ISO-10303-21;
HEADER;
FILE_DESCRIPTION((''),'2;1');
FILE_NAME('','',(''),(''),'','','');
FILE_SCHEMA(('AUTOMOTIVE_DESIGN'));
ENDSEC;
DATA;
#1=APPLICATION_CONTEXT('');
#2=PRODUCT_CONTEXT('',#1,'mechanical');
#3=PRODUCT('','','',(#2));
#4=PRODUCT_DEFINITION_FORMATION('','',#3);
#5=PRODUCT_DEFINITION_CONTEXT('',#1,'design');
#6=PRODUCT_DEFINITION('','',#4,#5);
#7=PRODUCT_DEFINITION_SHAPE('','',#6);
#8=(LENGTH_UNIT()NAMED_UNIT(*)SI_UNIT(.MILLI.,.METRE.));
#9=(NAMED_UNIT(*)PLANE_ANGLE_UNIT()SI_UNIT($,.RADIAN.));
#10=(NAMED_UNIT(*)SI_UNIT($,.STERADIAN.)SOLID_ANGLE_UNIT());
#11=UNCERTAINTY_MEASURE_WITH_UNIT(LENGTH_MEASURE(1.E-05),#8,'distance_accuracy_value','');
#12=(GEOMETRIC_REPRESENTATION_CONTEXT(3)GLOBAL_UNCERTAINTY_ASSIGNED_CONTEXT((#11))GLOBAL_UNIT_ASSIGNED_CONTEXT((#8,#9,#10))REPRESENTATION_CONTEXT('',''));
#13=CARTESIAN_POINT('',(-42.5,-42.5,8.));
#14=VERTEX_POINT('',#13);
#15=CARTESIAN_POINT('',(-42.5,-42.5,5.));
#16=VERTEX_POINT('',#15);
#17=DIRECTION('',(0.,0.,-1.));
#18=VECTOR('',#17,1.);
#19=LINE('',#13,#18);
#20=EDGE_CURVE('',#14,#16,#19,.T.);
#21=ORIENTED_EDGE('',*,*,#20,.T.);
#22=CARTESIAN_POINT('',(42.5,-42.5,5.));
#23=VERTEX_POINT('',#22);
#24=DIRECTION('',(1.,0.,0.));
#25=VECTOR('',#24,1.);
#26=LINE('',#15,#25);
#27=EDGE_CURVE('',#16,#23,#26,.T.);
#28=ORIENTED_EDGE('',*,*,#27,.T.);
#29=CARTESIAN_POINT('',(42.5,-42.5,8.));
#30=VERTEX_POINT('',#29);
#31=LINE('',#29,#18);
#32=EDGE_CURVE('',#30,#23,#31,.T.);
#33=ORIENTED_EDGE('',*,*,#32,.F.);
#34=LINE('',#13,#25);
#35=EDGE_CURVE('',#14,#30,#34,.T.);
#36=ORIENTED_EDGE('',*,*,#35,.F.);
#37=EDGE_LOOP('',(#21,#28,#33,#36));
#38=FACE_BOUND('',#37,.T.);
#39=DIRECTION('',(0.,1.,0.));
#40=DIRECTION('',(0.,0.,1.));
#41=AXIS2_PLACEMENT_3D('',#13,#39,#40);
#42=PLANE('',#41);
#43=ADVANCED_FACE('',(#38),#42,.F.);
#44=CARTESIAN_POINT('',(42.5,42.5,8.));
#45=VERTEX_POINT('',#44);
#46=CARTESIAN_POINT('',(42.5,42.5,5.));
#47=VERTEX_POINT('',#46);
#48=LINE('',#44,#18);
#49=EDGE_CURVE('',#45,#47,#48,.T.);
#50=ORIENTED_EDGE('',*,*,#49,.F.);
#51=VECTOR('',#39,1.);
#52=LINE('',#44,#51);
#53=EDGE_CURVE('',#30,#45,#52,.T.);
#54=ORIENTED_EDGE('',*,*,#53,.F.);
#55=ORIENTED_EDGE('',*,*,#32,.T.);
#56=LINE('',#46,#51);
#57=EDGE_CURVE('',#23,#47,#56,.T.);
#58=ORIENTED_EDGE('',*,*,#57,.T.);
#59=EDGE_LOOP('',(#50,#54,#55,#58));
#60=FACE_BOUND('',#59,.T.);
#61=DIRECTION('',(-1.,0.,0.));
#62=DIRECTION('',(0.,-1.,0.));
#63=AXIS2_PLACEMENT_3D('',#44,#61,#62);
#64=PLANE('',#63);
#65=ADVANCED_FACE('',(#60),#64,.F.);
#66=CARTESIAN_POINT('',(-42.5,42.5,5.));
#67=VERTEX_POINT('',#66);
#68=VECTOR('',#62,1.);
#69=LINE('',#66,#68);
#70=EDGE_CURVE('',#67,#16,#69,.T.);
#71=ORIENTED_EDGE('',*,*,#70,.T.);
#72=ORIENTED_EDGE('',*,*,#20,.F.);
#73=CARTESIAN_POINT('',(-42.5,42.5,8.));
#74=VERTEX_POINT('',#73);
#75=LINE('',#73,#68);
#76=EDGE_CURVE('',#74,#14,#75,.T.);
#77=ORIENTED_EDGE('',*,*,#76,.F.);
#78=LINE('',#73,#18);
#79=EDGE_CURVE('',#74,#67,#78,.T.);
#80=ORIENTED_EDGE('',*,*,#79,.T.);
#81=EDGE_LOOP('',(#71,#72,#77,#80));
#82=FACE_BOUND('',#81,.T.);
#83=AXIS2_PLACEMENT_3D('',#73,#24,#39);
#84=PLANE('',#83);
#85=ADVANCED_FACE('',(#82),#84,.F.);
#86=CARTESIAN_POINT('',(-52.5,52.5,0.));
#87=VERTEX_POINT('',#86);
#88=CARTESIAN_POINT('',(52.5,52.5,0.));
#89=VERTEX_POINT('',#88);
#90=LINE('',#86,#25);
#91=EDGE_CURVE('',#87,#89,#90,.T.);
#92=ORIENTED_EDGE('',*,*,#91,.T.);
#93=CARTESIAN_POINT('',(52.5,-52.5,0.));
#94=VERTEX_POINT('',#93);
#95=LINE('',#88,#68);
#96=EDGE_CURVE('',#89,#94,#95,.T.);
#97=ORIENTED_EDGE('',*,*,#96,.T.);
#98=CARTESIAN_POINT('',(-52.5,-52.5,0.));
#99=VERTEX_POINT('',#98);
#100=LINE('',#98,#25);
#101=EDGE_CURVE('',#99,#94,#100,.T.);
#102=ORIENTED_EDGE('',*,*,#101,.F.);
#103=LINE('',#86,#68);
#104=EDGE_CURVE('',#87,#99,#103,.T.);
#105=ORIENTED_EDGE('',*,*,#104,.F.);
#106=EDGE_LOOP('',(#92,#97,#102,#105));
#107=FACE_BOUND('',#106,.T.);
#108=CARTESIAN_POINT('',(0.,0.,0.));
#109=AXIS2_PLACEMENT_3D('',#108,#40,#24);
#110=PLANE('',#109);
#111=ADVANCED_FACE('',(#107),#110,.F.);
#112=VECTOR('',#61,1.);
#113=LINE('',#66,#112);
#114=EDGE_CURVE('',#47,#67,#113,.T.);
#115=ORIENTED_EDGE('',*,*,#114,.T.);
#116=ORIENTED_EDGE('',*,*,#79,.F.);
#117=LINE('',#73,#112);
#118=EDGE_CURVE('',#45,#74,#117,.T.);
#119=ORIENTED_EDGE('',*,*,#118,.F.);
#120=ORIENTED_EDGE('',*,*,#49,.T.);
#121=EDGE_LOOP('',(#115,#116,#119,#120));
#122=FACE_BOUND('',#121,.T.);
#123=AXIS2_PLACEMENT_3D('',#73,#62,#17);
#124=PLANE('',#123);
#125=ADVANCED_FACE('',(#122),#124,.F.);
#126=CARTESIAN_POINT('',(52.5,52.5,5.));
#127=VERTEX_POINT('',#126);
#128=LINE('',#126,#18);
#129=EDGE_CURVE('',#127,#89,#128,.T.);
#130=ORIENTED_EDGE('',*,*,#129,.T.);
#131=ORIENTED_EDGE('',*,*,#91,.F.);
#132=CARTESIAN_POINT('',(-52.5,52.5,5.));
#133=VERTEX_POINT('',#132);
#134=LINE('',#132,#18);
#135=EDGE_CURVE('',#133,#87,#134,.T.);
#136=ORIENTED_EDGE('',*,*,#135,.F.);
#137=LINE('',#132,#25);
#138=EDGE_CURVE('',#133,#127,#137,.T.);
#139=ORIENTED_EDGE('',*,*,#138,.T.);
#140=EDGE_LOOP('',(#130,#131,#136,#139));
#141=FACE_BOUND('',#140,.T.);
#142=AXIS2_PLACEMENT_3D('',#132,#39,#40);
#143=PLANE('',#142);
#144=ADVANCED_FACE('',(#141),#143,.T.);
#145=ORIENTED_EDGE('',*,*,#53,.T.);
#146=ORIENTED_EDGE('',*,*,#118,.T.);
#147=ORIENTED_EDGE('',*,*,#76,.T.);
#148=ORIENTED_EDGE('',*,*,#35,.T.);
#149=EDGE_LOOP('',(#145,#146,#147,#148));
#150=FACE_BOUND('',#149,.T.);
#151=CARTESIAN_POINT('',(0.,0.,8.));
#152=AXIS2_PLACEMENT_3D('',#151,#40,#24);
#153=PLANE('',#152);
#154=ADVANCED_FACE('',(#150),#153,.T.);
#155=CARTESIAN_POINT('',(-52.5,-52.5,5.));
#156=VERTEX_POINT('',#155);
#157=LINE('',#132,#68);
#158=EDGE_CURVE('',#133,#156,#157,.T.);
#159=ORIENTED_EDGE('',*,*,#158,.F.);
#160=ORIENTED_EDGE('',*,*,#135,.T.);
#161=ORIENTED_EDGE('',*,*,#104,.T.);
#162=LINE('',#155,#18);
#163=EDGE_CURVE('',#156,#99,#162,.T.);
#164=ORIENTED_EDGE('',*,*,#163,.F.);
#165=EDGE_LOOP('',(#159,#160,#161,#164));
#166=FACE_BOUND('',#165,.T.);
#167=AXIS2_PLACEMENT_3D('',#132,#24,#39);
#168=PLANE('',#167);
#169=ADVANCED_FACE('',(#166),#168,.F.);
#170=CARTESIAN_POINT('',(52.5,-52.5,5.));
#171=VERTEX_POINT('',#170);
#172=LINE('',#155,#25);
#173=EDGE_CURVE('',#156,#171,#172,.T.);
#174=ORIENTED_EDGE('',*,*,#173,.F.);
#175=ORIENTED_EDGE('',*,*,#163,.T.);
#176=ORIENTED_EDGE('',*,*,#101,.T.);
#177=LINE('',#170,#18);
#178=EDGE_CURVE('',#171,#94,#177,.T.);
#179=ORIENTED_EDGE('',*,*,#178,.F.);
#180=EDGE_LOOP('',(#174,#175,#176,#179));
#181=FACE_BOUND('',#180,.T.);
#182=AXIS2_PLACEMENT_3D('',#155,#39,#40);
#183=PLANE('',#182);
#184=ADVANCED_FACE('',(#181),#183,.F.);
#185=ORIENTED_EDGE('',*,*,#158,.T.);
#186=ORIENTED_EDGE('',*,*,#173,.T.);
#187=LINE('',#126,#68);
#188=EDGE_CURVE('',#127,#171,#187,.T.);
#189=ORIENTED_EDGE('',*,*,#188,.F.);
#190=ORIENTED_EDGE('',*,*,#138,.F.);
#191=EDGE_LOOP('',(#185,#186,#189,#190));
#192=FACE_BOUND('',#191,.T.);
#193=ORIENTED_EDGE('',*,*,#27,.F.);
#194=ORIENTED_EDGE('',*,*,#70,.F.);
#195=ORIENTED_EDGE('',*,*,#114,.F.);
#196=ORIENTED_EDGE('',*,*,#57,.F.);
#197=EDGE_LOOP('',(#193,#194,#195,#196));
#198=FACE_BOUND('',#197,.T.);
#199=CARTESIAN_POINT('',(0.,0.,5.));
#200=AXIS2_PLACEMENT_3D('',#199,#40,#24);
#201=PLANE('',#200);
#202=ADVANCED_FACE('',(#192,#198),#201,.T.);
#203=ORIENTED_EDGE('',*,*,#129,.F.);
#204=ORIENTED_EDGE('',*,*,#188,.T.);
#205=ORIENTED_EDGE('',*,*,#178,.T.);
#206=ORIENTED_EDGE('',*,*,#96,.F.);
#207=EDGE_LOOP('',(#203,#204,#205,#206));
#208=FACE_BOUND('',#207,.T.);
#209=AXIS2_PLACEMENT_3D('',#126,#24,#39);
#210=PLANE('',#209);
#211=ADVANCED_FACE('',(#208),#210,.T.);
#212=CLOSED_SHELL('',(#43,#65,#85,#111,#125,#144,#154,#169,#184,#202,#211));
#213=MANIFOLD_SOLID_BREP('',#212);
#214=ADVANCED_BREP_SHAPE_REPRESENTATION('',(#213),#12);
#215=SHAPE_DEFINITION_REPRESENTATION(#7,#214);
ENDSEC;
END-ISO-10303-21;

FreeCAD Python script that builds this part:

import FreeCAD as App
import Part
import Sketcher
from FreeCAD import Vector
Q = App.Units.Quantity


def add_polygon(sketch, points):
    """Adds a closed chain of lines whose ends are joined by coincident constraints."""
    first, n = sketch.GeometryCount, len(points)
    for a, b in zip(points, points[1:] + points[:1]):
        sketch.addGeometry(Part.LineSegment(App.Vector(*a, 0), App.Vector(*b, 0)), False)
    for i in range(n):
        sketch.addConstraint(Sketcher.Constraint("Coincident", first + i, 2, first + (i + 1) % n, 1))

doc = App.newDocument("Part")
body = doc.addObject("PartDesign::Body", "Body")

sketch1 = body.newObject("Sketcher::SketchObject", "Sketch")
sketch1.AttachmentSupport = (doc.getObject("XY_Plane"), [""])
sketch1.MapMode = "FlatFace"
add_polygon(sketch1, [(-52, 52), (-52, -52), (52, -52), (52, 52)])
sketch1.addConstraint([
    Sketcher.Constraint("Vertical", 0),
    Sketcher.Constraint("Horizontal", 1),
    Sketcher.Constraint("Vertical", 2),
    Sketcher.Constraint("Horizontal", 3),
    Sketcher.Constraint("Symmetric", 0, 2, 2, 2, -1, 1),
    Sketcher.Constraint("Equal", 3, 0),
    Sketcher.Constraint("DistanceX", 1, 1, 1, 2, Q("105 mm")),
])
pad1 = body.newObject("PartDesign::Pad", "Pad")
pad1.Profile = sketch1
pad1.Length = 5

sketch2 = body.newObject("Sketcher::SketchObject", "Sketch001")
sketch2.AttachmentSupport = (doc.getObject("XY_Plane"), [""])
sketch2.MapMode = "FlatFace"
sketch2.AttachmentOffset = App.Placement(Vector(0, 0, 5), App.Rotation())
add_polygon(sketch2, [(-42, 42), (-42, -42), (42, -42), (42, 42)])
sketch2.addConstraint([
    Sketcher.Constraint("Vertical", 0),
    Sketcher.Constraint("Horizontal", 1),
    Sketcher.Constraint("Vertical", 2),
    Sketcher.Constraint("Horizontal", 3),
    Sketcher.Constraint("Symmetric", 0, 2, 2, 2, -1, 1),
    Sketcher.Constraint("Equal", 3, 0),
    Sketcher.Constraint("DistanceX", 1, 1, 1, 2, Q("85 mm")),
])
pad2 = body.newObject("PartDesign::Pad", "Pad001")
pad2.Profile = sketch2
pad2.Length = 3

doc.recompute()
